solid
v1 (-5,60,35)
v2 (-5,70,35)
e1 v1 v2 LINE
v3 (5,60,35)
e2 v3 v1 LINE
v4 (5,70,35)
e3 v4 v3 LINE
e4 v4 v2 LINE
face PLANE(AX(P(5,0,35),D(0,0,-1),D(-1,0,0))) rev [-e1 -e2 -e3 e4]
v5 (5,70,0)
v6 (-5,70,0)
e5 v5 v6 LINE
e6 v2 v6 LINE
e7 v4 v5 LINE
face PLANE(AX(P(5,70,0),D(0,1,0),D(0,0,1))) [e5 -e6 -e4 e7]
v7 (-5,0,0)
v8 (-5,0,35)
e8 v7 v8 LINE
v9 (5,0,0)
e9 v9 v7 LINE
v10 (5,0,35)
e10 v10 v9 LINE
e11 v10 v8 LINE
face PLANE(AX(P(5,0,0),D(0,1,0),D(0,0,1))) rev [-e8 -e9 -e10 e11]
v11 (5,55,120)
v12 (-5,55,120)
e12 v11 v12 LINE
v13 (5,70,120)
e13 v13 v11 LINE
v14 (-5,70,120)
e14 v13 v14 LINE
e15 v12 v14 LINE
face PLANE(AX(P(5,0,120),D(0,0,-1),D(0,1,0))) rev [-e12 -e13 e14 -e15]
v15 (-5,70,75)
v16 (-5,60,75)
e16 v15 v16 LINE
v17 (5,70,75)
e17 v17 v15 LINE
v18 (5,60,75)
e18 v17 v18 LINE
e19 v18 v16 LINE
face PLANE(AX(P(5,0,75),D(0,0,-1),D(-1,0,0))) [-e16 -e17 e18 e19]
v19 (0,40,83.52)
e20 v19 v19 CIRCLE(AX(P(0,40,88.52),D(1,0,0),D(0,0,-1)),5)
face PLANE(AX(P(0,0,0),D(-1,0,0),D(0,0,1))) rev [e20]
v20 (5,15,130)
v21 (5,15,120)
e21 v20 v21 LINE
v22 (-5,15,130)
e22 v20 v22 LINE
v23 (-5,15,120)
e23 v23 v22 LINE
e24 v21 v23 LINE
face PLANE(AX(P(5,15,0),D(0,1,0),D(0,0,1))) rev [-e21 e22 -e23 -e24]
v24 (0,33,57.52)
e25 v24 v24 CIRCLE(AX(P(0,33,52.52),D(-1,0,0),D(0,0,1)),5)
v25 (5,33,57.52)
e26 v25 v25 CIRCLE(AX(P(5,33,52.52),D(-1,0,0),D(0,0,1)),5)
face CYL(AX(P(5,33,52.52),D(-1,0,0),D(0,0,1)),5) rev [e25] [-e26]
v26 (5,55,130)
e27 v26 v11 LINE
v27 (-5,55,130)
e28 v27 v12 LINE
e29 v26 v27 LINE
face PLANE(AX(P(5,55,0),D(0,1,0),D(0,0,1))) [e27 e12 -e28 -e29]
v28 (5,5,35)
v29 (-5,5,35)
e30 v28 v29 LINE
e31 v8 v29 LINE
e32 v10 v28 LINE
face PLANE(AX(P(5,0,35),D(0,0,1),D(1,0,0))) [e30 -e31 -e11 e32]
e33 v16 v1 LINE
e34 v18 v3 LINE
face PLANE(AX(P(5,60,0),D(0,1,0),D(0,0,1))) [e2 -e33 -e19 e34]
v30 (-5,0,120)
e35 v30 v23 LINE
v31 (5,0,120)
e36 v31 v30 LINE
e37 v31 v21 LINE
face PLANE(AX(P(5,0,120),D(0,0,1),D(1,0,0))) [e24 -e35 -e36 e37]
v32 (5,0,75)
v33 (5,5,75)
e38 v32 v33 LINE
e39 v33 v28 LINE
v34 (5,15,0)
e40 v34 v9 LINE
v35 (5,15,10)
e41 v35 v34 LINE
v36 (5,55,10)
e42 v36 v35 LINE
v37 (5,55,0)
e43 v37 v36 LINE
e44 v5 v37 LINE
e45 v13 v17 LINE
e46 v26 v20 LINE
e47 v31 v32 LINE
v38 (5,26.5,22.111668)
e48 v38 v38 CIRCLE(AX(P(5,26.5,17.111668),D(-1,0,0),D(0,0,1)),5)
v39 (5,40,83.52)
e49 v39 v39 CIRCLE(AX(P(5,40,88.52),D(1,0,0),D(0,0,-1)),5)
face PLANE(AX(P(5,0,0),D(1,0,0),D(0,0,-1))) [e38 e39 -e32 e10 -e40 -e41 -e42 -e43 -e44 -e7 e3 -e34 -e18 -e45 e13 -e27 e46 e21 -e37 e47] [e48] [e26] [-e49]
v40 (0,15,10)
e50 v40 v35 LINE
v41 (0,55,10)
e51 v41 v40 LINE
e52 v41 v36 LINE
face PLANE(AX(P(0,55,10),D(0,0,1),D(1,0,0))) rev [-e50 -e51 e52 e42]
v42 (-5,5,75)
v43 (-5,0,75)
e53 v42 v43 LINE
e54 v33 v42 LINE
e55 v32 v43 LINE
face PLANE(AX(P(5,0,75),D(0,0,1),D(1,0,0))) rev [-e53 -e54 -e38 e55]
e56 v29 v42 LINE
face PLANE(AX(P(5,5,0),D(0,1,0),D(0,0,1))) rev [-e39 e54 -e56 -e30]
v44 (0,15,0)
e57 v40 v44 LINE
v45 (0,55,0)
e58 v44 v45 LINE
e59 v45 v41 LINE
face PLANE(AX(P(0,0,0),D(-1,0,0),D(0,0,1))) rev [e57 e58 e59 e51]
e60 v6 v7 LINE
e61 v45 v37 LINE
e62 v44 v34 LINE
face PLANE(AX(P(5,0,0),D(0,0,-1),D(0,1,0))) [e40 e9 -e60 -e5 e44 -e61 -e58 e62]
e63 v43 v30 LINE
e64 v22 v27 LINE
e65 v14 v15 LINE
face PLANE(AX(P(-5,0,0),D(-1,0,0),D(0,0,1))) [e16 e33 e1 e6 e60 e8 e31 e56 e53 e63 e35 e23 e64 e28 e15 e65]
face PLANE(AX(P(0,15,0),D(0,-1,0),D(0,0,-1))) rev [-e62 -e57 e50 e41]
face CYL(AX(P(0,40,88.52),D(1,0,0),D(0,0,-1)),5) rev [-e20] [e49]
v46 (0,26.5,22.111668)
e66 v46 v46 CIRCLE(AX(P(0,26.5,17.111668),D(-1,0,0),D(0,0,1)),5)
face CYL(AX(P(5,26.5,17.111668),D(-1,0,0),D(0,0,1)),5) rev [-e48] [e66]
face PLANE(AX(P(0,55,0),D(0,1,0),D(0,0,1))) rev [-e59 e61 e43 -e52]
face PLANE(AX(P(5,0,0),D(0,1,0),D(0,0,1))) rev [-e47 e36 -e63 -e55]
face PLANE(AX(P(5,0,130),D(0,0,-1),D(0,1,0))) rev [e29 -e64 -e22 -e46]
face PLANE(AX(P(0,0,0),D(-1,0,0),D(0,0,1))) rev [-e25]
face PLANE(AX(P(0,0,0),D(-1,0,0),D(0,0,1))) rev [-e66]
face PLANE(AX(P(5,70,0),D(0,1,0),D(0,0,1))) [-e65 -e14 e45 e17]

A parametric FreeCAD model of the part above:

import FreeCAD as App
import Part
import Sketcher

V = App.Vector


def add_polygon(sketch, points):
    """Adds a closed chain of lines whose ends are joined by coincident constraints."""
    first, n = sketch.GeometryCount, len(points)
    for a, b in zip(points, points[1:] + points[:1]):
        sketch.addGeometry(Part.LineSegment(App.Vector(*a, 0), App.Vector(*b, 0)), False)
    for i in range(n):
        sketch.addConstraint(Sketcher.Constraint("Coincident", first + i, 2, first + (i + 1) % n, 1))

doc = App.newDocument("Part")
body = doc.addObject("PartDesign::Body", "Body")

sketch1 = doc.addObject("Sketcher::SketchObject", "Sketch")
body.addObject(sketch1)
sketch1.AttachmentSupport = (doc.YZ_Plane, [""])
sketch1.MapMode = "FlatFace"
add_polygon(sketch1, [(70, 75), (70, 120), (55, 120), (55, 130), (15, 130), (15, 120), (0, 120), (0, 75), (5, 75), (5, 35), (0, 35), (0, 0), (70, 0), (70, 35), (60, 35), (60, 75)])
sketch1.addConstraint(Sketcher.Constraint("Vertical", 0))
sketch1.addConstraint(Sketcher.Constraint("Horizontal", 1))
sketch1.addConstraint(Sketcher.Constraint("Vertical", 2))
sketch1.addConstraint(Sketcher.Constraint("Horizontal", 3))
sketch1.addConstraint(Sketcher.Constraint("Vertical", 4))
sketch1.addConstraint(Sketcher.Constraint("Horizontal", 5))
sketch1.addConstraint(Sketcher.Constraint("Vertical", 6))
sketch1.addConstraint(Sketcher.Constraint("Horizontal", 7))
sketch1.addConstraint(Sketcher.Constraint("Vertical", 8))
sketch1.addConstraint(Sketcher.Constraint("Horizontal", 9))
sketch1.addConstraint(Sketcher.Constraint("Vertical", 10))
sketch1.addConstraint(Sketcher.Constraint("Horizontal", 11))
sketch1.addConstraint(Sketcher.Constraint("Vertical", 12))
sketch1.addConstraint(Sketcher.Constraint("Horizontal", 13))
sketch1.addConstraint(Sketcher.Constraint("Vertical", 14))
sketch1.addConstraint(Sketcher.Constraint("Horizontal", 15))
sketch1.addConstraint(Sketcher.Constraint("Coincident", 10, 2, -1, 1))
sketch1.addConstraint(Sketcher.Constraint("PointOnObject", 5, 2, -2))
sketch1.addConstraint(Sketcher.Constraint("Horizontal", 1, 2, 4, 2))
sketch1.addConstraint(Sketcher.Constraint("Horizontal", 9, 2, 12, 2))
sketch1.addConstraint(Sketcher.Constraint("Horizontal", 7, 2, 14, 2))
sketch1.addConstraint(Sketcher.Constraint("Vertical", 0, 2, 11, 2))
sketch1.addConstraint(Sketcher.Constraint("Equal", 1, 5))
sketch1.addConstraint(Sketcher.Constraint("Equal", 15, 2))
sketch1.addConstraint(Sketcher.Constraint("Equal", 3, 8))
sketch1.addConstraint(Sketcher.Constraint("DistanceX", 1, 2, 1, 1, 15.0))
sketch1.addConstraint(Sketcher.Constraint("DistanceX", 3, 2, 3, 1, 40.0))
sketch1.addConstraint(Sketcher.Constraint("DistanceX", 7, 1, 7, 2, 5.0))
sketch1.addConstraint(Sketcher.Constraint("DistanceX", 13, 2, 13, 1, 10.0))
sketch1.addConstraint(Sketcher.Constraint("DistanceY", 0, 1, 0, 2, 45.0))
sketch1.addConstraint(Sketcher.Constraint("DistanceY", 10, 2, 10, 1, 35.0))
pad1 = doc.addObject("PartDesign::Pad", "Pad")
body.addObject(pad1)
pad1.Profile = sketch1
pad1.Length = 5

sketch2 = doc.addObject("Sketcher::SketchObject", "Sketch001")
body.addObject(sketch2)
sketch2.AttachmentSupport = (doc.YZ_Plane, [""])
sketch2.MapMode = "FlatFace"
sketch2.addGeometry(Part.Circle(V(26, 17, 0), V(0, 0, 1), 5), False)
sketch2.addGeometry(Part.Circle(V(33, 53, 0), V(0, 0, 1), 5), False)
sketch2.addConstraint(Sketcher.Constraint("Equal", 0, 1))
sketch2.addConstraint(Sketcher.Constraint("Diameter", 0, 10.0))
sketch2.addConstraint(Sketcher.Constraint("DistanceX", -1, 1, 1, 3, 33.0))
sketch2.addConstraint(Sketcher.Constraint("DistanceX", -1, 1, 0, 3, 26.5))
sketch2.addConstraint(Sketcher.Constraint("DistanceY", -1, 1, 1, 3, 52.52))
sketch2.addConstraint(Sketcher.Constraint("DistanceY", -1, 1, 0, 3, 17.111668))
pocket1 = doc.addObject("PartDesign::Pocket", "Pocket")
body.addObject(pocket1)
pocket1.Profile = sketch2
pocket1.Length = 5
pocket1.Reversed = True

sketch3 = doc.addObject("Sketcher::SketchObject", "Sketch002")
body.addObject(sketch3)
sketch3.AttachmentSupport = (doc.YZ_Plane, [""])
sketch3.MapMode = "FlatFace"
sketch3.AttachmentOffset = App.Placement(V(0, 0, 5), App.Rotation())
sketch3.addGeometry(Part.Circle(V(40, 89, 0), V(0, 0, 1), 5), False)
sketch3.addConstraint(Sketcher.Constraint("Diameter", 0, 10.0))
sketch3.addConstraint(Sketcher.Constraint("DistanceX", -1, 1, 0, 3, 40.0))
sketch3.addConstraint(Sketcher.Constraint("DistanceY", -1, 1, 0, 3, 88.52))
pocket2 = doc.addObject("PartDesign::Pocket", "Pocket001")
body.addObject(pocket2)
pocket2.Profile = sketch3
pocket2.Length = 5

sketch4 = doc.addObject("Sketcher::SketchObject", "Sketch003")
body.addObject(sketch4)
sketch4.AttachmentSupport = (doc.YZ_Plane, [""])
sketch4.MapMode = "FlatFace"
add_polygon(sketch4, [(0, 35), (5, 35), (5, 75), (0, 75), (0, 120), (15, 120), (15, 130), (55, 130), (55, 120), (70, 120), (70, 75), (60, 75), (60, 35), (70, 35), (70, 0), (0, 0)])
sketch4.addConstraint(Sketcher.Constraint("Horizontal", 0))
sketch4.addConstraint(Sketcher.Constraint("Vertical", 1))
sketch4.addConstraint(Sketcher.Constraint("Horizontal", 2))
sketch4.addConstraint(Sketcher.Constraint("Vertical", 3))
sketch4.addConstraint(Sketcher.Constraint("Horizontal", 4))
sketch4.addConstraint(Sketcher.Constraint("Vertical", 5))
sketch4.addConstraint(Sketcher.Constraint("Horizontal", 6))
sketch4.addConstraint(Sketcher.Constraint("Vertical", 7))
sketch4.addConstraint(Sketcher.Constraint("Horizontal", 8))
sketch4.addConstraint(Sketcher.Constraint("Vertical", 9))
sketch4.addConstraint(Sketcher.Constraint("Horizontal", 10))
sketch4.addConstraint(Sketcher.Constraint("Vertical", 11))
sketch4.addConstraint(Sketcher.Constraint("Horizontal", 12))
sketch4.addConstraint(Sketcher.Constraint("Vertical", 13))
sketch4.addConstraint(Sketcher.Constraint("Horizontal", 14))
sketch4.addConstraint(Sketcher.Constraint("Vertical", 15))
sketch4.addConstraint(Sketcher.Constraint("Coincident", 14, 2, -1, 1))
sketch4.addConstraint(Sketcher.Constraint("PointOnObject", 2, 2, -2))
sketch4.addConstraint(Sketcher.Constraint("Horizontal", 4, 2, 7, 2))
sketch4.addConstraint(Sketcher.Constraint("Horizontal", 2, 2, 9, 2))
sketch4.addConstraint(Sketcher.Constraint("Horizontal", 0, 2, 11, 2))
sketch4.addConstraint(Sketcher.Constraint("Vertical", 9, 2, 12, 2))
sketch4.addConstraint(Sketcher.Constraint("Equal", 4, 8))
sketch4.addConstraint(Sketcher.Constraint("Equal", 6, 1))
sketch4.addConstraint(Sketcher.Constraint("Equal", 12, 5))
sketch4.addConstraint(Sketcher.Constraint("DistanceX", 0, 1, 0, 2, 5.0))
sketch4.addConstraint(Sketcher.Constraint("DistanceX", 4, 1, 4, 2, 15.0))
sketch4.addConstraint(Sketcher.Constraint("DistanceX", 6, 1, 6, 2, 40.0))
sketch4.addConstraint(Sketcher.Constraint("DistanceX", 10, 2, 10, 1, 10.0))
sketch4.addConstraint(Sketcher.Constraint("DistanceY", 3, 1, 3, 2, 45.0))
sketch4.addConstraint(Sketcher.Constraint("DistanceY", 13, 2, 13, 1, 35.0))
pad2 = doc.addObject("PartDesign::Pad", "Pad001")
body.addObject(pad2)
pad2.Profile = sketch4
pad2.Length = 5
pad2.Reversed = True

sketch5 = doc.addObject("Sketcher::SketchObject", "Sketch004")
body.addObject(sketch5)
sketch5.AttachmentSupport = (doc.YZ_Plane, [""])
sketch5.MapMode = "FlatFace"
sketch5.AttachmentOffset = App.Placement(V(0, 0, 5), App.Rotation())
add_polygon(sketch5, [(55, 10), (15, 10), (15, 0), (55, 0)])
sketch5.addConstraint(Sketcher.Constraint("Horizontal", 0))
sketch5.addConstraint(Sketcher.Constraint("Vertical", 1))
sketch5.addConstraint(Sketcher.Constraint("Horizontal", 2))
sketch5.addConstraint(Sketcher.Constraint("Vertical", 3))
sketch5.addConstraint(Sketcher.Constraint("PointOnObject", 1, 2, -1))
sketch5.addConstraint(Sketcher.Constraint("DistanceX", 0, 2, 0, 1, 40.0))
sketch5.addConstraint(Sketcher.Constraint("DistanceY", 1, 2, 1, 1, 10.0))
sketch5.addConstraint(Sketcher.Constraint("DistanceX", -1, 1, 0, 2, 15.0))
pocket3 = doc.addObject("PartDesign::Pocket", "Pocket002")
body.addObject(pocket3)
pocket3.Profile = sketch5
pocket3.Length = 5

doc.recompute()
